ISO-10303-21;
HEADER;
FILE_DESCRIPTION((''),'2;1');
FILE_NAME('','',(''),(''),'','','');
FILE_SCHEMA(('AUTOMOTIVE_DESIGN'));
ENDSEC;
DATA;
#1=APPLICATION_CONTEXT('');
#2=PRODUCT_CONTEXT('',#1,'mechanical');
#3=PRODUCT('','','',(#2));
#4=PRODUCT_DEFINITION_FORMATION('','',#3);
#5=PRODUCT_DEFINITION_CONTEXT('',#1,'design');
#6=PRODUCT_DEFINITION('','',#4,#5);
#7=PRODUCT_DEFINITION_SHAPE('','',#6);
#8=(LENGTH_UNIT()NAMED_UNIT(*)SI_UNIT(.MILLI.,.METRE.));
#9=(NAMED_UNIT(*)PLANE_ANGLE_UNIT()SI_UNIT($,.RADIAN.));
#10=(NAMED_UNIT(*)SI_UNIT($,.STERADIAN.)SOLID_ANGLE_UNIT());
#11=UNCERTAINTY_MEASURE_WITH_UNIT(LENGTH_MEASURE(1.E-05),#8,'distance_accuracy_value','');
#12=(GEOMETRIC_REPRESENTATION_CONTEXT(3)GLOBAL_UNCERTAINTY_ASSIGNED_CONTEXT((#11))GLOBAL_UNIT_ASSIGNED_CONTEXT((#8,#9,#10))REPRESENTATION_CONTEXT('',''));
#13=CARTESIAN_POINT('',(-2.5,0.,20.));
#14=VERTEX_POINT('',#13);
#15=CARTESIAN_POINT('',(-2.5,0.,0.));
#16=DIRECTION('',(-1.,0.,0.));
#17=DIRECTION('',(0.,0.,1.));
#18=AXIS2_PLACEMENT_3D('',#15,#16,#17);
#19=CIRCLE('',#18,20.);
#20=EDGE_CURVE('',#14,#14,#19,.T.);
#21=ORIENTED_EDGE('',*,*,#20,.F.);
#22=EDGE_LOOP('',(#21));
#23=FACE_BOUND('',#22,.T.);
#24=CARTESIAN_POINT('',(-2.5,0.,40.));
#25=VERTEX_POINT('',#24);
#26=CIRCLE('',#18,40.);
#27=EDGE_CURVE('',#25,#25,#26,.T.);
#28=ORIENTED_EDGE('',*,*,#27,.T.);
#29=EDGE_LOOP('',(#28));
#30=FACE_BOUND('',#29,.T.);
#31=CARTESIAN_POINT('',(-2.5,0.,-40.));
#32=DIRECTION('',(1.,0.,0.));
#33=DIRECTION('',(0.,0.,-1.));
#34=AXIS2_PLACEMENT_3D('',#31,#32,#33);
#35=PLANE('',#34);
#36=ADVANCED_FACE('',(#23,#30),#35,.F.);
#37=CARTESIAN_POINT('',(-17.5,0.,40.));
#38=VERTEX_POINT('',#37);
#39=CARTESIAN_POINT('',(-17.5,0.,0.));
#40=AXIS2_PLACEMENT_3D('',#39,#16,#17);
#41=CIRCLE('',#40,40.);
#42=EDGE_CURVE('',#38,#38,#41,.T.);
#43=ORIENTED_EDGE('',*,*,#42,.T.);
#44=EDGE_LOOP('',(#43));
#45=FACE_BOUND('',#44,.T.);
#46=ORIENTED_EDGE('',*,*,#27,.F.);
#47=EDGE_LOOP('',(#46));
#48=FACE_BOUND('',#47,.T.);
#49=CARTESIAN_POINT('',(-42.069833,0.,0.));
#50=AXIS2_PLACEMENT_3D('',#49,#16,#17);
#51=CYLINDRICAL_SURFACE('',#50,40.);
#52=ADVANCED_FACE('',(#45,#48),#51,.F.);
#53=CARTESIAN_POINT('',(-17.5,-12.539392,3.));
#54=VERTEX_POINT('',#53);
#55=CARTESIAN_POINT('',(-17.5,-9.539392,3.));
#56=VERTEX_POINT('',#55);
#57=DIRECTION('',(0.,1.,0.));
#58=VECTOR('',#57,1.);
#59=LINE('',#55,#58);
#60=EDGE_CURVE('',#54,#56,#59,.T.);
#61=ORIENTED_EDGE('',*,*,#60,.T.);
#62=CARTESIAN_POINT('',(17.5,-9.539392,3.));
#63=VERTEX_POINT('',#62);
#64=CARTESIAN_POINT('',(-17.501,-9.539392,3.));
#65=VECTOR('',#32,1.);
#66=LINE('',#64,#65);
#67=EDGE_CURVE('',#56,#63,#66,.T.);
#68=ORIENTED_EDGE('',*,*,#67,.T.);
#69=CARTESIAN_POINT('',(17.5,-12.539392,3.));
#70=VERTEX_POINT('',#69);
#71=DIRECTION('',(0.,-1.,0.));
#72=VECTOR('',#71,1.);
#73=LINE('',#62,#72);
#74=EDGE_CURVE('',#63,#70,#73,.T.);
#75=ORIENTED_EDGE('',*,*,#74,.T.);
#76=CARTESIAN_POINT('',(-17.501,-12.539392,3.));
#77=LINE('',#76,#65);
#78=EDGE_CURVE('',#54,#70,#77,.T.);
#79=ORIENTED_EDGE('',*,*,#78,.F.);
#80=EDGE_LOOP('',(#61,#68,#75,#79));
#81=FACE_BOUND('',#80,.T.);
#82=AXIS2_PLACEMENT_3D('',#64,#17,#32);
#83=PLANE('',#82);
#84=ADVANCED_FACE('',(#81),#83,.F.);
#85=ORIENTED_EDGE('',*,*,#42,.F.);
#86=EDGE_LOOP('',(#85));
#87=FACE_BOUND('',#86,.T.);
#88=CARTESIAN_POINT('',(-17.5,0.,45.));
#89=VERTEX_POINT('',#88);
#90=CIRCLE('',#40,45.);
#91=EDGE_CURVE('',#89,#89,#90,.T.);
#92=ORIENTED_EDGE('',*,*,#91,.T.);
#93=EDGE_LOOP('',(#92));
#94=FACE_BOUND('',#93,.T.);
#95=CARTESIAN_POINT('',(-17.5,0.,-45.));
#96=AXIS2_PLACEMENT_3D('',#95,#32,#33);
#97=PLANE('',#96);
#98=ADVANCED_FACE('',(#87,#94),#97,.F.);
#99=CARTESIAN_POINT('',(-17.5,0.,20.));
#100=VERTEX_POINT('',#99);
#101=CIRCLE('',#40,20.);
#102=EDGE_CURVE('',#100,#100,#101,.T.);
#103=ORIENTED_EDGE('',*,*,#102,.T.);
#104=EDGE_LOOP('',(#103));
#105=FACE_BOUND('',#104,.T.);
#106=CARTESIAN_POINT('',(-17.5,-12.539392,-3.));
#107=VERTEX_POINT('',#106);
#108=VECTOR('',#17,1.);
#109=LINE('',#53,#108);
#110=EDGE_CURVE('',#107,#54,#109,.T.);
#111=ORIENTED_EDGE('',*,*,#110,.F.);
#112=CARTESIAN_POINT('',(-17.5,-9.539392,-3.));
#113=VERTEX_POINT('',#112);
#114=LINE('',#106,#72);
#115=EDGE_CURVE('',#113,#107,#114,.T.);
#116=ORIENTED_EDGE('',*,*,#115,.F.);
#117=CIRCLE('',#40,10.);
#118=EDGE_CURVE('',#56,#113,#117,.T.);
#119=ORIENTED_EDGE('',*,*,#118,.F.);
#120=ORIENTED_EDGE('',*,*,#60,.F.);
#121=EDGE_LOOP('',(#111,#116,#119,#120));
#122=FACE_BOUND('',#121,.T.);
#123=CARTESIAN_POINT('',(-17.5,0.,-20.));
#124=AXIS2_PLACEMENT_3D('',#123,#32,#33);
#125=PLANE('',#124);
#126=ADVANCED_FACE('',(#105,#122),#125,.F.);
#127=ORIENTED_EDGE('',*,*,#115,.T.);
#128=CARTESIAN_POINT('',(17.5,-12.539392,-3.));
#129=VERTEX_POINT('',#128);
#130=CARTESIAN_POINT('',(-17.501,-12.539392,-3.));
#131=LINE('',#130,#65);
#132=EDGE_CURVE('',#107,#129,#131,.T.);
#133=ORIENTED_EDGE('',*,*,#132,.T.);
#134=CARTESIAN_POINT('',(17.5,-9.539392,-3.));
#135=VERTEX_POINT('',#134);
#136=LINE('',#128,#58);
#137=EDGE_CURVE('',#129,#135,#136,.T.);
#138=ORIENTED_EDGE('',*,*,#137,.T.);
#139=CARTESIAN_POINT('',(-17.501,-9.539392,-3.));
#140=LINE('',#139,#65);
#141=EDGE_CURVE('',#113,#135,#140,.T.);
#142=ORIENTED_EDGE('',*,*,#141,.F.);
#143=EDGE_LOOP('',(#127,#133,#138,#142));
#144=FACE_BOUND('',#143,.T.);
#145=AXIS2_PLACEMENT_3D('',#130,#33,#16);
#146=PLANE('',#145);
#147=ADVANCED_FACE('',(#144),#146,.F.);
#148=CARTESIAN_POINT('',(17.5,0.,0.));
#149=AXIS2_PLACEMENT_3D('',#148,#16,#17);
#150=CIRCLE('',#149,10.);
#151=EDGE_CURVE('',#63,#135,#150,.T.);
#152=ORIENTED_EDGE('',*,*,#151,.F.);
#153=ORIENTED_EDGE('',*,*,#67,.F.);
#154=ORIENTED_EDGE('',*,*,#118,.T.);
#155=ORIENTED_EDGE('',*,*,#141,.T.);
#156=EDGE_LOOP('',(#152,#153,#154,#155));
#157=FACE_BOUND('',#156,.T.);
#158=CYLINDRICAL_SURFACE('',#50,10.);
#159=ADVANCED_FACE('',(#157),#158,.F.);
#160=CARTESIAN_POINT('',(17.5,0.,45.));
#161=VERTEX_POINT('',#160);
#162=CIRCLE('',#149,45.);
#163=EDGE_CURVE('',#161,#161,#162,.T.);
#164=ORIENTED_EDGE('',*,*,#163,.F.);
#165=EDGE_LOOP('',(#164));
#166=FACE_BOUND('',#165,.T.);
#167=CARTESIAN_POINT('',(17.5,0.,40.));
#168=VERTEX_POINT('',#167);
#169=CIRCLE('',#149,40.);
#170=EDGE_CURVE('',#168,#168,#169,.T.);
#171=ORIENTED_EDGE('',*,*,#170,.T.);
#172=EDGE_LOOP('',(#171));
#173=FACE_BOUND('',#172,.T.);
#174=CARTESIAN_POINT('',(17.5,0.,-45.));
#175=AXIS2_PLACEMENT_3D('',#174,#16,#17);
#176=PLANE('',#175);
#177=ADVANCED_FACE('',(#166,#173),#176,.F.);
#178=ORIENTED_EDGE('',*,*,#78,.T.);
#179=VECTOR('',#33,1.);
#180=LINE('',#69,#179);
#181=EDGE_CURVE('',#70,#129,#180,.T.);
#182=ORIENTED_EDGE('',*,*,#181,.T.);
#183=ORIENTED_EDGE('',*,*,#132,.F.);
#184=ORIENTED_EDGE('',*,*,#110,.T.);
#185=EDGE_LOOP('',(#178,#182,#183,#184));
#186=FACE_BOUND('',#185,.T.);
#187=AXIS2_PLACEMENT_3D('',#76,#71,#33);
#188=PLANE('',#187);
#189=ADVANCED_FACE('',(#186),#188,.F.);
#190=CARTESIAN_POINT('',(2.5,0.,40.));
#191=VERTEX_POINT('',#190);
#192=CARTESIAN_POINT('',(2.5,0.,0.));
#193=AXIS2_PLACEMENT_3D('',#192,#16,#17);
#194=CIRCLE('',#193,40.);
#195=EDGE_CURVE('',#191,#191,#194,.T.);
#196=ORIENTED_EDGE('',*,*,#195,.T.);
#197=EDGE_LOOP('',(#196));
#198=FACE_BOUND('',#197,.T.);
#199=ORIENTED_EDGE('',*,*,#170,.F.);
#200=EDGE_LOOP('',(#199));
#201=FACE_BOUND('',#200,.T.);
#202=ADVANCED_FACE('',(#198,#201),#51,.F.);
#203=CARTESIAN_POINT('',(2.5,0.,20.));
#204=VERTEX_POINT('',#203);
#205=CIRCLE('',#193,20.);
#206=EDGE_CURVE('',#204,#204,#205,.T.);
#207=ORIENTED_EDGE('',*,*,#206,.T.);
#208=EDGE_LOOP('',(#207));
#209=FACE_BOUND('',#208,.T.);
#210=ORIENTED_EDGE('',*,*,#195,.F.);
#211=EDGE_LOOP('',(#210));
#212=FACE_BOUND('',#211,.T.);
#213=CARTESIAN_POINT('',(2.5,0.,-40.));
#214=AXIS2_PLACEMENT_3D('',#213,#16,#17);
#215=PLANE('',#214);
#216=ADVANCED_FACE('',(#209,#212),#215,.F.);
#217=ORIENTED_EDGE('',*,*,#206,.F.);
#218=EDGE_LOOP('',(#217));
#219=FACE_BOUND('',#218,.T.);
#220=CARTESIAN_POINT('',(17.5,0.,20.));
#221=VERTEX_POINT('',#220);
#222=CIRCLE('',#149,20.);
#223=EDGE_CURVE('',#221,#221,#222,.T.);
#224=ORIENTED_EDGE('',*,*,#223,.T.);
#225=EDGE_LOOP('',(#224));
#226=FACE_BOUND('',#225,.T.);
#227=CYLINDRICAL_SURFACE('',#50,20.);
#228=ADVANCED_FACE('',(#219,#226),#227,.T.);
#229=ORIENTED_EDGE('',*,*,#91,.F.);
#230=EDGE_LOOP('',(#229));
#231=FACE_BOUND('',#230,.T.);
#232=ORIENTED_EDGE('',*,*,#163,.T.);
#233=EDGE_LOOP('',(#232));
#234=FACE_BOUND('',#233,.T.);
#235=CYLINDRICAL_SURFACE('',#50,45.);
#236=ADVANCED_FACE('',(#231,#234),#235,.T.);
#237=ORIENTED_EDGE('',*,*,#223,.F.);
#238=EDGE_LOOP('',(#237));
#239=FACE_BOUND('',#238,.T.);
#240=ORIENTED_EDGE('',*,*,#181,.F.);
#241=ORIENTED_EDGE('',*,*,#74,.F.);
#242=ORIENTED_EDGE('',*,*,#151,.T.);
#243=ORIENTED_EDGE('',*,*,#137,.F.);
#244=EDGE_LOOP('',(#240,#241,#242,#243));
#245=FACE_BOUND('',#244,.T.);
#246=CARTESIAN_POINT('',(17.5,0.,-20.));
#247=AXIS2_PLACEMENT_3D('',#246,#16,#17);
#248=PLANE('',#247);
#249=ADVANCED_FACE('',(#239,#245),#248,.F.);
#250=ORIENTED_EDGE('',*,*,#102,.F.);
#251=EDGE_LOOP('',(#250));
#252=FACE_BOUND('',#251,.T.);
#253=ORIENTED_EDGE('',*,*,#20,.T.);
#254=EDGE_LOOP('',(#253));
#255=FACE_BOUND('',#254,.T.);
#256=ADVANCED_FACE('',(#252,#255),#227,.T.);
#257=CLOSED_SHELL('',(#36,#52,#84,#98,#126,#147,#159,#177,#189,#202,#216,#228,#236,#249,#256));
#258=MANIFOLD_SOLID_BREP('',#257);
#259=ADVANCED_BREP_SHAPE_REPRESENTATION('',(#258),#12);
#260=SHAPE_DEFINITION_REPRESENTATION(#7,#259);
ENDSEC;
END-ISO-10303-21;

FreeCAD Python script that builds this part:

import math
import FreeCAD as App
import Part
import Sketcher

V = App.Vector


def add_polygon(sketch, points):
    """Adds a closed chain of lines whose ends are joined by coincident constraints."""
    first, n = sketch.GeometryCount, len(points)
    for a, b in zip(points, points[1:] + points[:1]):
        sketch.addGeometry(Part.LineSegment(App.Vector(*a, 0), App.Vector(*b, 0)), False)
    for i in range(n):
        sketch.addConstraint(Sketcher.Constraint("Coincident", first + i, 2, first + (i + 1) % n, 1))

doc = App.newDocument("Part")
body = doc.addObject("PartDesign::Body", "Body")

sketch1 = doc.addObject("Sketcher::SketchObject", "Sketch")
body.addObject(sketch1)
sketch1.AttachmentSupport = (doc.XZ_Plane, [""])
sketch1.MapMode = "FlatFace"
add_polygon(sketch1, [(17.5, -45), (-17.5, -45), (-17.5, -40), (-2.5, -40), (-2.5, -20), (-17.5, -20), (-17.5, -10), (17.5, -10), (17.5, -20), (2.5, -20), (2.5, -40), (17.5, -40)])
sketch1.addConstraint(Sketcher.Constraint("Horizontal", 0))
sketch1.addConstraint(Sketcher.Constraint("Vertical", 1))
sketch1.addConstraint(Sketcher.Constraint("Horizontal", 2))
sketch1.addConstraint(Sketcher.Constraint("Vertical", 3))
sketch1.addConstraint(Sketcher.Constraint("Horizontal", 4))
sketch1.addConstraint(Sketcher.Constraint("Vertical", 5))
sketch1.addConstraint(Sketcher.Constraint("Horizontal", 6))
sketch1.addConstraint(Sketcher.Constraint("Vertical", 7))
sketch1.addConstraint(Sketcher.Constraint("Horizontal", 8))
sketch1.addConstraint(Sketcher.Constraint("Vertical", 9))
sketch1.addConstraint(Sketcher.Constraint("Horizontal", 10))
sketch1.addConstraint(Sketcher.Constraint("Vertical", 11))
sketch1.addConstraint(Sketcher.Constraint("Symmetric", 4, 2, 7, 2, -2))
sketch1.addConstraint(Sketcher.Constraint("Symmetric", 2, 2, 9, 2, -2))
sketch1.addConstraint(Sketcher.Constraint("Vertical", 1, 2, 4, 2))
sketch1.addConstraint(Sketcher.Constraint("Vertical", 7, 2, 10, 2))
sketch1.addConstraint(Sketcher.Constraint("DistanceX", 0, 2, 0, 1, 35.0))
sketch1.addConstraint(Sketcher.Constraint("DistanceX", 2, 1, 2, 2, 15.0))
sketch1.addConstraint(Sketcher.Constraint("DistanceY", 1, 1, 1, 2, 5.0))
sketch1.addConstraint(Sketcher.Constraint("DistanceY", 3, 1, 3, 2, 20.0))
sketch1.addConstraint(Sketcher.Constraint("DistanceY", 5, 1, 5, 2, 10.0))
sketch1.addConstraint(Sketcher.Constraint("DistanceY", 0, 2, -1, 1, 45.0))
revolution = doc.addObject("PartDesign::Revolution", "Revolution")
body.addObject(revolution)
revolution.Profile = sketch1
revolution.ReferenceAxis = (sketch1, ["H_Axis"])
revolution.Angle = 360

sketch2 = doc.addObject("Sketcher::SketchObject", "Sketch001")
body.addObject(sketch2)
sketch2.AttachmentSupport = (doc.YZ_Plane, [""])
sketch2.MapMode = "FlatFace"
sketch2.AttachmentOffset = App.Placement(V(0, 0, 17.5), App.Rotation())
sketch2.addGeometry(Part.LineSegment(V(-9.539392, 3, 0), V(-12.539392, 3, 0)), False)
sketch2.addGeometry(Part.LineSegment(V(-12.539392, 3, 0), V(-12.539392, -3, 0)), False)
sketch2.addGeometry(Part.LineSegment(V(-12.539392, -3, 0), V(-9.539392, -3, 0)), False)
sketch2.addGeometry(Part.ArcOfCircle(Part.Circle(V(0, 0, 0), V(0, 0, 1), 10), math.radians(162.542397), math.radians(197.457603)), False)
sketch2.addConstraint(Sketcher.Constraint("Coincident", 0, 2, 1, 1))
sketch2.addConstraint(Sketcher.Constraint("Coincident", 1, 2, 2, 1))
sketch2.addConstraint(Sketcher.Constraint("Coincident", 2, 2, 3, 2))
sketch2.addConstraint(Sketcher.Constraint("Coincident", 3, 1, 0, 1))
sketch2.addConstraint(Sketcher.Constraint("Horizontal", 0))
sketch2.addConstraint(Sketcher.Constraint("Vertical", 1))
sketch2.addConstraint(Sketcher.Constraint("Horizontal", 2))
sketch2.addConstraint(Sketcher.Constraint("Coincident", 3, 3, -1, 1))
sketch2.addConstraint(Sketcher.Constraint("Vertical", 2, 2, 3, 1))
sketch2.addConstraint(Sketcher.Constraint("Radius", 3, 10.0))
sketch2.addConstraint(Sketcher.Constraint("DistanceX", 0, 2, 0, 1, 3.0))
sketch2.addConstraint(Sketcher.Constraint("DistanceY", 1, 2, 1, 1, 6.0))
pocket1 = doc.addObject("PartDesign::Pocket", "Pocket")
body.addObject(pocket1)
pocket1.Profile = sketch2
pocket1.Type = "UpToFirst"

doc.recompute()
